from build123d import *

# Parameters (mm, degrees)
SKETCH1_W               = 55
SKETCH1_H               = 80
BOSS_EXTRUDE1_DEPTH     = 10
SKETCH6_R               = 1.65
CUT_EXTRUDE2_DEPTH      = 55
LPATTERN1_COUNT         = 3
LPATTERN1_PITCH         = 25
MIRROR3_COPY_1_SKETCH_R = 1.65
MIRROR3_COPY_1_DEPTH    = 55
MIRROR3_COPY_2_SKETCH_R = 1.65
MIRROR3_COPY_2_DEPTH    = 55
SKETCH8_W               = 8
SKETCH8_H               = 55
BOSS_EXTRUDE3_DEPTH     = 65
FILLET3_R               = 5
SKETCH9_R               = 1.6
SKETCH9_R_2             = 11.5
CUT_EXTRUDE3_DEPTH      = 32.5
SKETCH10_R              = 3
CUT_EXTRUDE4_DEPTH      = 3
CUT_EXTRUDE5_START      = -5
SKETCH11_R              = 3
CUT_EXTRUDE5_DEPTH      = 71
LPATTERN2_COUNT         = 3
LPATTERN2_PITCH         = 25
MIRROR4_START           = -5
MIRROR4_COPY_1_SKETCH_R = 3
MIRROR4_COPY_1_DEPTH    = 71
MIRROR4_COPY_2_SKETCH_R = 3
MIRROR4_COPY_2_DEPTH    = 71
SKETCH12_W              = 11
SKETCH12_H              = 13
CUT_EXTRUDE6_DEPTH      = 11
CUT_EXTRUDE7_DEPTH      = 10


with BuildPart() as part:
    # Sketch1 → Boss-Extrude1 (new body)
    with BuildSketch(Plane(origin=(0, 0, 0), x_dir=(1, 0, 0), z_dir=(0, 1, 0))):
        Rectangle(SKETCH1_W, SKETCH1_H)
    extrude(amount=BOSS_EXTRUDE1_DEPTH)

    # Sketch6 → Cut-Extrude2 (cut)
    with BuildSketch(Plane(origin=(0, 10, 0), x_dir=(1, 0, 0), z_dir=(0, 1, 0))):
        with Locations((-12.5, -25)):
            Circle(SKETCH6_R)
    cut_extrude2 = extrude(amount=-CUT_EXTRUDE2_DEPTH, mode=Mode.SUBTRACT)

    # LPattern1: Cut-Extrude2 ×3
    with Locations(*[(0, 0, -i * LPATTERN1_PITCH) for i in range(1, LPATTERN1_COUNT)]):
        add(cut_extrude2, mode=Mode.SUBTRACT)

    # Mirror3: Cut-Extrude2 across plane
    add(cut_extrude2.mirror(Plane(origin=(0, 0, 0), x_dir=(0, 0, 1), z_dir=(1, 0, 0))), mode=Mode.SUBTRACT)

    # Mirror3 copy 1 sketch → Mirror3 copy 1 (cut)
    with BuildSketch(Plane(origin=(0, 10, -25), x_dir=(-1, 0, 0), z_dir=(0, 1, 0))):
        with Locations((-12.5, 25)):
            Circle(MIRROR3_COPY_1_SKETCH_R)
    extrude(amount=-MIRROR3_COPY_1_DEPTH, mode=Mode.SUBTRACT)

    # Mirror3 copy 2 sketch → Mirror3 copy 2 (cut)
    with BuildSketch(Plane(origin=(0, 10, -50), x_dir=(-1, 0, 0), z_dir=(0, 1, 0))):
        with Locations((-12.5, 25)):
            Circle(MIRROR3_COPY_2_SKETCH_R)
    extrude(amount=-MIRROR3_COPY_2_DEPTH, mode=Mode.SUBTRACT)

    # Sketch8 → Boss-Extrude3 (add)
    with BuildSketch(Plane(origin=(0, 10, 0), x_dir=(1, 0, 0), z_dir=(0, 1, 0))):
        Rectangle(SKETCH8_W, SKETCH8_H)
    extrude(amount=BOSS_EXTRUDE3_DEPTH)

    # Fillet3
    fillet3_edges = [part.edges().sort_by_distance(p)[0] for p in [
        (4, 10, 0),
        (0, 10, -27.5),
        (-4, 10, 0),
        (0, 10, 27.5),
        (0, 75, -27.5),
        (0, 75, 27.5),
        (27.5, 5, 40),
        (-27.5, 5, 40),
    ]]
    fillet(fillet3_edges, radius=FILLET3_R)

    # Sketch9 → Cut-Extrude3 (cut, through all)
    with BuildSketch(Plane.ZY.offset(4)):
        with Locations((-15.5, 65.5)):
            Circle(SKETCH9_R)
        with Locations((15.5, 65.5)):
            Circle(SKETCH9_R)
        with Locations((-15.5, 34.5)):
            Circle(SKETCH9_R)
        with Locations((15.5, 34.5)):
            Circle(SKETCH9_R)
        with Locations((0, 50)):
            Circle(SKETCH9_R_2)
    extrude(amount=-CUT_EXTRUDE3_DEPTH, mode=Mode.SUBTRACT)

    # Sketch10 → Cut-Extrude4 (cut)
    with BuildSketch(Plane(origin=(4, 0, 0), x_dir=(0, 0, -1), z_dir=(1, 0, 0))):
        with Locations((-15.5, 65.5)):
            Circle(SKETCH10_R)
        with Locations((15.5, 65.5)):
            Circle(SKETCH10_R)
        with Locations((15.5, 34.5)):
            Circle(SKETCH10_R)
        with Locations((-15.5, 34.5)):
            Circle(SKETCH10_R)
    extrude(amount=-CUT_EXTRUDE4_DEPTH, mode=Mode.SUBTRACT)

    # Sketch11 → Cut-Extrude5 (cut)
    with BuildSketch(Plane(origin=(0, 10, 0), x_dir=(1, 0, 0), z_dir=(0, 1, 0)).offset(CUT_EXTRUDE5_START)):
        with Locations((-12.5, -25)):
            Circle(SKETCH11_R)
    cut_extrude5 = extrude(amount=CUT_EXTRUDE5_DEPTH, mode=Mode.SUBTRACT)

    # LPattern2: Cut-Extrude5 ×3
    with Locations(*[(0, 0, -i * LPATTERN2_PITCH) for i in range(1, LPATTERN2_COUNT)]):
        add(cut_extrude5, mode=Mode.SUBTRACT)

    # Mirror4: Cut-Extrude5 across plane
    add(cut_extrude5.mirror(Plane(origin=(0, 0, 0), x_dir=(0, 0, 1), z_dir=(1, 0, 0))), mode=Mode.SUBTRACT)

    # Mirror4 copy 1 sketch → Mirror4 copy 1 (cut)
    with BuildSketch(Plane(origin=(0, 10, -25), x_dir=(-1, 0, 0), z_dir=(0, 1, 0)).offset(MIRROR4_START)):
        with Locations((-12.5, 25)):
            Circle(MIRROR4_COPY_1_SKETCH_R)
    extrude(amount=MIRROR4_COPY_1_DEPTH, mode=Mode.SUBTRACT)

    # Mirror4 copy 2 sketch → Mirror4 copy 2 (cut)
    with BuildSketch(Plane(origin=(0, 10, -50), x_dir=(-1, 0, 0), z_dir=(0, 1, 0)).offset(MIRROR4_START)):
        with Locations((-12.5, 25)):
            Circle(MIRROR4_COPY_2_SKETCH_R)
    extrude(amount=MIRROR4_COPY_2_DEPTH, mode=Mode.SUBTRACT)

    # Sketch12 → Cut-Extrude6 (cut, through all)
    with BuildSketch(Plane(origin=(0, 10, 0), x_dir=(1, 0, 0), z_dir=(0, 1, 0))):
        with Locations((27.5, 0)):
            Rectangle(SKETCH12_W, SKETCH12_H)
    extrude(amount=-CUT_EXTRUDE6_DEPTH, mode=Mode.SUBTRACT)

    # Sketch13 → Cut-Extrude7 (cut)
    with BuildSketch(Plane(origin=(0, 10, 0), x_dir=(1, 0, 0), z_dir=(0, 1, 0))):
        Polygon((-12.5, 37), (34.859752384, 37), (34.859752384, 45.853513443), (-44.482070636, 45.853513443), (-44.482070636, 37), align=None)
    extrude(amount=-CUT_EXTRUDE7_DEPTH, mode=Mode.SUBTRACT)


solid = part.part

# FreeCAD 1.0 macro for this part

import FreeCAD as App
import Part
import Sketcher
from FreeCAD import Vector


def edges_at(feature, points):
    """Names of the edges that pass closest to the given points."""
    edges = feature.Shape.Edges
    near = lambda p: min(range(len(edges)), key=lambda i: edges[i].distToShape(Part.Vertex(*p))[0])
    return sorted({f"Edge{near(p) + 1}" for p in points})

doc = App.newDocument("Part")
body = doc.addObject("PartDesign::Body", "Body")

sketch1 = body.newObject("Sketcher::SketchObject", "Sketch")
sketch1.AttachmentSupport = (doc.getObject("XZ_Plane"), [""])
sketch1.MapMode = "FlatFace"
sketch1.addGeometry(Part.LineSegment(Vector(-28, -40, 0), Vector(-28, 40, 0)), False)
sketch1.addGeometry(Part.LineSegment(Vector(-28, 40, 0), Vector(28, 40, 0)), False)
sketch1.addGeometry(Part.LineSegment(Vector(28, 40, 0), Vector(28, -40, 0)), False)
sketch1.addGeometry(Part.LineSegment(Vector(28, -40, 0), Vector(-28, -40, 0)), False)
sketch1.addConstraint(Sketcher.Constraint("Coincident", 0, 2, 1, 1))
sketch1.addConstraint(Sketcher.Constraint("Coincident", 1, 2, 2, 1))
sketch1.addConstraint(Sketcher.Constraint("Coincident", 2, 2, 3, 1))
sketch1.addConstraint(Sketcher.Constraint("Coincident", 3, 2, 0, 1))
sketch1.addConstraint(Sketcher.Constraint("Vertical", 0))
sketch1.addConstraint(Sketcher.Constraint("Horizontal", 1))
sketch1.addConstraint(Sketcher.Constraint("Vertical", 2))
sketch1.addConstraint(Sketcher.Constraint("Horizontal", 3))
sketch1.addConstraint(Sketcher.Constraint("Symmetric", 0, 2, 2, 2, -1, 1))
sketch1.addConstraint(Sketcher.Constraint("DistanceX", 1, 1, 1, 2, 55.0))
sketch1.addConstraint(Sketcher.Constraint("DistanceY", 0, 1, 0, 2, 80.0))
pad1 = body.newObject("PartDesign::Pad", "Pad")
pad1.Profile = sketch1
pad1.Length = 10
pad1.Reversed = True

sketch2 = body.newObject("Sketcher::SketchObject", "Sketch001")
sketch2.AttachmentSupport = (doc.getObject("XZ_Plane"), [""])
sketch2.MapMode = "FlatFace"
sketch2.AttachmentOffset = App.Placement(Vector(0, 0, -10), App.Rotation())
sketch2.addGeometry(Part.Circle(Vector(-12.5, 25, 0), Vector(0, 0, 1), 1.6), False)
sketch2.addConstraint(Sketcher.Constraint("Diameter", 0, 3.3))
sketch2.addConstraint(Sketcher.Constraint("DistanceY", -1, 1, 0, 3, 25.0))
sketch2.addConstraint(Sketcher.Constraint("DistanceX", 0, 3, -1, 1, 12.5))
pocket1 = body.newObject("PartDesign::Pocket", "Pocket")
pocket1.Profile = sketch2
pocket1.Length = 55
pocket1.Reversed = True
doc.recompute()

linearpattern = body.newObject("PartDesign::LinearPattern", "LinearPattern")
linearpattern.Originals = [pocket1]
linearpattern.Direction = (doc.getObject("Z_Axis"), [""])
linearpattern.Mode = "offset"
linearpattern.Offset = 25
linearpattern.Occurrences = 3
linearpattern.Reversed = True
body.Tip = linearpattern
doc.recompute()

mirrored = body.newObject("PartDesign::Mirrored", "Mirrored")
mirrored.Originals = [pocket1]
mirrored.MirrorPlane = (doc.getObject("YZ_Plane"), [""])
body.Tip = mirrored

sketch3 = body.newObject("Sketcher::SketchObject", "Sketch002")
sketch3.AttachmentSupport = (doc.getObject("XZ_Plane"), [""])
sketch3.MapMode = "FlatFace"
sketch3.AttachmentOffset = App.Placement(Vector(0, 0, -10), App.Rotation())
sketch3.addGeometry(Part.Circle(Vector(12.5, 0, 0), Vector(0, 0, 1), 1.6), False)
sketch3.addConstraint(Sketcher.Constraint("PointOnObject", 0, 3, -1))
sketch3.addConstraint(Sketcher.Constraint("Diameter", 0, 3.3))
sketch3.addConstraint(Sketcher.Constraint("DistanceX", -1, 1, 0, 3, 12.5))
pocket2 = body.newObject("PartDesign::Pocket", "Pocket001")
pocket2.Profile = sketch3
pocket2.Length = 55
pocket2.Reversed = True

sketch4 = body.newObject("Sketcher::SketchObject", "Sketch003")
sketch4.AttachmentSupport = (doc.getObject("XZ_Plane"), [""])
sketch4.MapMode = "FlatFace"
sketch4.AttachmentOffset = App.Placement(Vector(0, 0, -10), App.Rotation())
sketch4.addGeometry(Part.Circle(Vector(12.5, -25, 0), Vector(0, 0, 1), 1.6), False)
sketch4.addConstraint(Sketcher.Constraint("Diameter", 0, 3.3))
sketch4.addConstraint(Sketcher.Constraint("DistanceY", 0, 3, -1, 1, 25.0))
sketch4.addConstraint(Sketcher.Constraint("DistanceX", -1, 1, 0, 3, 12.5))
pocket3 = body.newObject("PartDesign::Pocket", "Pocket002")
pocket3.Profile = sketch4
pocket3.Length = 55
pocket3.Reversed = True

sketch5 = body.newObject("Sketcher::SketchObject", "Sketch004")
sketch5.AttachmentSupport = (doc.getObject("XZ_Plane"), [""])
sketch5.MapMode = "FlatFace"
sketch5.AttachmentOffset = App.Placement(Vector(0, 0, -10), App.Rotation())
sketch5.addGeometry(Part.LineSegment(Vector(-4, -28, 0), Vector(-4, 28, 0)), False)
sketch5.addGeometry(Part.LineSegment(Vector(-4, 28, 0), Vector(4, 28, 0)), False)
sketch5.addGeometry(Part.LineSegment(Vector(4, 28, 0), Vector(4, -28, 0)), False)
sketch5.addGeometry(Part.LineSegment(Vector(4, -28, 0), Vector(-4, -28, 0)), False)
sketch5.addConstraint(Sketcher.Constraint("Coincident", 0, 2, 1, 1))
sketch5.addConstraint(Sketcher.Constraint("Coincident", 1, 2, 2, 1))
sketch5.addConstraint(Sketcher.Constraint("Coincident", 2, 2, 3, 1))
sketch5.addConstraint(Sketcher.Constraint("Coincident", 3, 2, 0, 1))
sketch5.addConstraint(Sketcher.Constraint("Vertical", 0))
sketch5.addConstraint(Sketcher.Constraint("Horizontal", 1))
sketch5.addConstraint(Sketcher.Constraint("Vertical", 2))
sketch5.addConstraint(Sketcher.Constraint("Horizontal", 3))
sketch5.addConstraint(Sketcher.Constraint("Symmetric", 0, 2, 2, 2, -1, 1))
sketch5.addConstraint(Sketcher.Constraint("DistanceX", 1, 1, 1, 2, 8.0))
sketch5.addConstraint(Sketcher.Constraint("DistanceY", 0, 1, 0, 2, 55.0))
pad2 = body.newObject("PartDesign::Pad", "Pad001")
pad2.Profile = sketch5
pad2.Length = 65
pad2.Reversed = True
doc.recompute()

fillet = body.newObject("PartDesign::Fillet", "Fillet")
fillet.Base = (pad2, edges_at(pad2, [
    (4, 10, 0),
    (0, 10, -27.5),
    (-4, 10, 0),
    (0, 10, 27.5),
    (0, 75, -27.5),
    (0, 75, 27.5),
    (27.5, 5, 40),
    (-27.5, 5, 40),
]))
fillet.Radius = 5

sketch6 = body.newObject("Sketcher::SketchObject", "Sketch005")
sketch6.AttachmentSupport = (doc.getObject("YZ_Plane"), [""])
sketch6.MapMode = "FlatFace"
sketch6.AttachmentOffset = App.Placement(Vector(0, 0, -4), App.Rotation())
sketch6.addGeometry(Part.Circle(Vector(65.5, -15.5, 0), Vector(0, 0, 1), 1.6), False)
sketch6.addGeometry(Part.Circle(Vector(65.5, 15.5, 0), Vector(0, 0, 1), 1.6), False)
sketch6.addGeometry(Part.Circle(Vector(34.5, -15.5, 0), Vector(0, 0, 1), 1.6), False)
sketch6.addGeometry(Part.Circle(Vector(34.5, 15.5, 0), Vector(0, 0, 1), 1.6), False)
sketch6.addGeometry(Part.Circle(Vector(50, 0, 0), Vector(0, 0, 1), 11.5), False)
sketch6.addConstraint(Sketcher.Constraint("Equal", 0, 1))
sketch6.addConstraint(Sketcher.Constraint("Equal", 1, 2))
sketch6.addConstraint(Sketcher.Constraint("Equal", 2, 3))
sketch6.addConstraint(Sketcher.Constraint("Symmetric", 0, 3, 1, 3, -1))
sketch6.addConstraint(Sketcher.Constraint("Symmetric", 2, 3, 3, 3, -1))
sketch6.addConstraint(Sketcher.Constraint("PointOnObject", 4, 3, -1))
sketch6.addConstraint(Sketcher.Constraint("Horizontal", 0, 3, 2, 3))
sketch6.addConstraint(Sketcher.Constraint("Diameter", 4, 23.0))
sketch6.addConstraint(Sketcher.Constraint("Diameter", 0, 3.2))
sketch6.addConstraint(Sketcher.Constraint("DistanceX", -1, 1, 4, 3, 50.0))
sketch6.addConstraint(Sketcher.Constraint("DistanceY", 0, 3, 1, 3, 31.0))
sketch6.addConstraint(Sketcher.Constraint("DistanceX", 2, 3, 0, 3, 31.0))
sketch6.addConstraint(Sketcher.Constraint("DistanceX", -1, 1, 0, 3, 65.5))
pocket4 = body.newObject("PartDesign::Pocket", "Pocket003")
pocket4.Profile = sketch6
pocket4.Type = "ThroughAll"
pocket4.Reversed = True

sketch7 = body.newObject("Sketcher::SketchObject", "Sketch006")
sketch7.AttachmentSupport = (doc.getObject("YZ_Plane"), [""])
sketch7.MapMode = "FlatFace"
sketch7.AttachmentOffset = App.Placement(Vector(0, 0, 4), App.Rotation())
sketch7.addGeometry(Part.Circle(Vector(65.5, 15.5, 0), Vector(0, 0, 1), 3), False)
sketch7.addGeometry(Part.Circle(Vector(65.5, -15.5, 0), Vector(0, 0, 1), 3), False)
sketch7.addGeometry(Part.Circle(Vector(34.5, -15.5, 0), Vector(0, 0, 1), 3), False)
sketch7.addGeometry(Part.Circle(Vector(34.5, 15.5, 0), Vector(0, 0, 1), 3), False)
sketch7.addConstraint(Sketcher.Constraint("Equal", 0, 1))
sketch7.addConstraint(Sketcher.Constraint("Equal", 1, 2))
sketch7.addConstraint(Sketcher.Constraint("Equal", 2, 3))
sketch7.addConstraint(Sketcher.Constraint("Symmetric", 0, 3, 1, 3, -1))
sketch7.addConstraint(Sketcher.Constraint("Symmetric", 2, 3, 3, 3, -1))
sketch7.addConstraint(Sketcher.Constraint("Horizontal", 1, 3, 2, 3))
sketch7.addConstraint(Sketcher.Constraint("Diameter", 0, 6.0))
sketch7.addConstraint(Sketcher.Constraint("DistanceY", 1, 3, 0, 3, 31.0))
sketch7.addConstraint(Sketcher.Constraint("DistanceX", 2, 3, 1, 3, 31.0))
sketch7.addConstraint(Sketcher.Constraint("DistanceX", -1, 1, 0, 3, 65.5))
pocket5 = body.newObject("PartDesign::Pocket", "Pocket004")
pocket5.Profile = sketch7
pocket5.Length = 3

sketch8 = body.newObject("Sketcher::SketchObject", "Sketch007")
sketch8.AttachmentSupport = (doc.getObject("XZ_Plane"), [""])
sketch8.MapMode = "FlatFace"
sketch8.AttachmentOffset = App.Placement(Vector(0, 0, -5), App.Rotation())
sketch8.addGeometry(Part.Circle(Vector(-12.5, 25, 0), Vector(0, 0, 1), 3), False)
sketch8.addConstraint(Sketcher.Constraint("Diameter", 0, 6.0))
sketch8.addConstraint(Sketcher.Constraint("DistanceY", -1, 1, 0, 3, 25.0))
sketch8.addConstraint(Sketcher.Constraint("DistanceX", 0, 3, -1, 1, 12.5))
pocket6 = body.newObject("PartDesign::Pocket", "Pocket005")
pocket6.Profile = sketch8
pocket6.Length = 71
doc.recompute()

linearpattern2 = body.newObject("PartDesign::LinearPattern", "LinearPattern001")
linearpattern2.Originals = [pocket6]
linearpattern2.Direction = (doc.getObject("Z_Axis"), [""])
linearpattern2.Mode = "offset"
linearpattern2.Offset = 25
linearpattern2.Occurrences = 3
linearpattern2.Reversed = True
body.Tip = linearpattern2
doc.recompute()

mirrored2 = body.newObject("PartDesign::Mirrored", "Mirrored001")
mirrored2.Originals = [pocket6]
mirrored2.MirrorPlane = (doc.getObject("YZ_Plane"), [""])
body.Tip = mirrored2

sketch9 = body.newObject("Sketcher::SketchObject", "Sketch008")
sketch9.AttachmentSupport = (doc.getObject("XZ_Plane"), [""])
sketch9.MapMode = "FlatFace"
sketch9.AttachmentOffset = App.Placement(Vector(0, 0, -5), App.Rotation())
sketch9.addGeometry(Part.Circle(Vector(12.5, 0, 0), Vector(0, 0, 1), 3), False)
sketch9.addConstraint(Sketcher.Constraint("PointOnObject", 0, 3, -1))
sketch9.addConstraint(Sketcher.Constraint("Diameter", 0, 6.0))
sketch9.addConstraint(Sketcher.Constraint("DistanceX", -1, 1, 0, 3, 12.5))
pocket7 = body.newObject("PartDesign::Pocket", "Pocket006")
pocket7.Profile = sketch9
pocket7.Length = 71

sketch10 = body.newObject("Sketcher::SketchObject", "Sketch009")
sketch10.AttachmentSupport = (doc.getObject("XZ_Plane"), [""])
sketch10.MapMode = "FlatFace"
sketch10.AttachmentOffset = App.Placement(Vector(0, 0, -5), App.Rotation())
sketch10.addGeometry(Part.Circle(Vector(12.5, -25, 0), Vector(0, 0, 1), 3), False)
sketch10.addConstraint(Sketcher.Constraint("Diameter", 0, 6.0))
sketch10.addConstraint(Sketcher.Constraint("DistanceY", 0, 3, -1, 1, 25.0))
sketch10.addConstraint(Sketcher.Constraint("DistanceX", -1, 1, 0, 3, 12.5))
pocket8 = body.newObject("PartDesign::Pocket", "Pocket007")
pocket8.Profile = sketch10
pocket8.Length = 71

sketch11 = body.newObject("Sketcher::SketchObject", "Sketch010")
sketch11.AttachmentSupport = (doc.getObject("XZ_Plane"), [""])
sketch11.MapMode = "FlatFace"
sketch11.AttachmentOffset = App.Placement(Vector(0, 0, -10), App.Rotation())
sketch11.addGeometry(Part.LineSegment(Vector(22, -6, 0), Vector(22, 6, 0)), False)
sketch11.addGeometry(Part.LineSegment(Vector(22, 6, 0), Vector(33, 6, 0)), False)
sketch11.addGeometry(Part.LineSegment(Vector(33, 6, 0), Vector(33, -6, 0)), False)
sketch11.addGeometry(Part.LineSegment(Vector(33, -6, 0), Vector(22, -6, 0)), False)
sketch11.addConstraint(Sketcher.Constraint("Coincident", 0, 2, 1, 1))
sketch11.addConstraint(Sketcher.Constraint("Coincident", 1, 2, 2, 1))
sketch11.addConstraint(Sketcher.Constraint("Coincident", 2, 2, 3, 1))
sketch11.addConstraint(Sketcher.Constraint("Coincident", 3, 2, 0, 1))
sketch11.addConstraint(Sketcher.Constraint("Vertical", 0))
sketch11.addConstraint(Sketcher.Constraint("Horizontal", 1))
sketch11.addConstraint(Sketcher.Constraint("Vertical", 2))
sketch11.addConstraint(Sketcher.Constraint("Horizontal", 3))
sketch11.addConstraint(Sketcher.Constraint("DistanceX", 1, 1, 1, 2, 11.0))
sketch11.addConstraint(Sketcher.Constraint("DistanceY", 0, 1, 0, 2, 13.0))
sketch11.addConstraint(Sketcher.Constraint("DistanceX", -1, 1, 0, 2, 22.0))
sketch11.addConstraint(Sketcher.Constraint("DistanceY", -1, 1, 0, 2, 6.5))
pocket9 = body.newObject("PartDesign::Pocket", "Pocket008")
pocket9.Profile = sketch11
pocket9.Type = "ThroughAll"
pocket9.Reversed = True

sketch12 = body.newObject("Sketcher::SketchObject", "Sketch011")
sketch12.AttachmentSupport = (doc.getObject("XZ_Plane"), [""])
sketch12.MapMode = "FlatFace"
sketch12.AttachmentOffset = App.Placement(Vector(0, 0, -10), App.Rotation())
sketch12.addGeometry(Part.LineSegment(Vector(35, -37, 0), Vector(35, -46, 0)), False)
sketch12.addGeometry(Part.LineSegment(Vector(35, -46, 0), Vector(-44, -46, 0)), False)
sketch12.addGeometry(Part.LineSegment(Vector(-44, -46, 0), Vector(-44, -37, 0)), False)
sketch12.addGeometry(Part.LineSegment(Vector(-44, -37, 0), Vector(35, -37, 0)), False)
sketch12.addConstraint(Sketcher.Constraint("Coincident", 0, 2, 1, 1))
sketch12.addConstraint(Sketcher.Constraint("Coincident", 1, 2, 2, 1))
sketch12.addConstraint(Sketcher.Constraint("Coincident", 2, 2, 3, 1))
sketch12.addConstraint(Sketcher.Constraint("Coincident", 3, 2, 0, 1))
sketch12.addConstraint(Sketcher.Constraint("Vertical", 0))
sketch12.addConstraint(Sketcher.Constraint("Horizontal", 1))
sketch12.addConstraint(Sketcher.Constraint("Vertical", 2))
sketch12.addConstraint(Sketcher.Constraint("Horizontal", 3))
sketch12.addConstraint(Sketcher.Constraint("DistanceY", 2, 2, -1, 1, 37.0))
sketch12.addConstraint(Sketcher.Constraint("DistanceX", 1, 2, 1, 1, 79.341823))
sketch12.addConstraint(Sketcher.Constraint("DistanceY", 0, 2, 0, 1, 8.853513))
sketch12.addConstraint(Sketcher.Constraint("DistanceX", 1, 2, -1, 1, 44.482071))
pocket10 = body.newObject("PartDesign::Pocket", "Pocket009")
pocket10.Profile = sketch12
pocket10.Length = 10
pocket10.Reversed = True

doc.recompute()
